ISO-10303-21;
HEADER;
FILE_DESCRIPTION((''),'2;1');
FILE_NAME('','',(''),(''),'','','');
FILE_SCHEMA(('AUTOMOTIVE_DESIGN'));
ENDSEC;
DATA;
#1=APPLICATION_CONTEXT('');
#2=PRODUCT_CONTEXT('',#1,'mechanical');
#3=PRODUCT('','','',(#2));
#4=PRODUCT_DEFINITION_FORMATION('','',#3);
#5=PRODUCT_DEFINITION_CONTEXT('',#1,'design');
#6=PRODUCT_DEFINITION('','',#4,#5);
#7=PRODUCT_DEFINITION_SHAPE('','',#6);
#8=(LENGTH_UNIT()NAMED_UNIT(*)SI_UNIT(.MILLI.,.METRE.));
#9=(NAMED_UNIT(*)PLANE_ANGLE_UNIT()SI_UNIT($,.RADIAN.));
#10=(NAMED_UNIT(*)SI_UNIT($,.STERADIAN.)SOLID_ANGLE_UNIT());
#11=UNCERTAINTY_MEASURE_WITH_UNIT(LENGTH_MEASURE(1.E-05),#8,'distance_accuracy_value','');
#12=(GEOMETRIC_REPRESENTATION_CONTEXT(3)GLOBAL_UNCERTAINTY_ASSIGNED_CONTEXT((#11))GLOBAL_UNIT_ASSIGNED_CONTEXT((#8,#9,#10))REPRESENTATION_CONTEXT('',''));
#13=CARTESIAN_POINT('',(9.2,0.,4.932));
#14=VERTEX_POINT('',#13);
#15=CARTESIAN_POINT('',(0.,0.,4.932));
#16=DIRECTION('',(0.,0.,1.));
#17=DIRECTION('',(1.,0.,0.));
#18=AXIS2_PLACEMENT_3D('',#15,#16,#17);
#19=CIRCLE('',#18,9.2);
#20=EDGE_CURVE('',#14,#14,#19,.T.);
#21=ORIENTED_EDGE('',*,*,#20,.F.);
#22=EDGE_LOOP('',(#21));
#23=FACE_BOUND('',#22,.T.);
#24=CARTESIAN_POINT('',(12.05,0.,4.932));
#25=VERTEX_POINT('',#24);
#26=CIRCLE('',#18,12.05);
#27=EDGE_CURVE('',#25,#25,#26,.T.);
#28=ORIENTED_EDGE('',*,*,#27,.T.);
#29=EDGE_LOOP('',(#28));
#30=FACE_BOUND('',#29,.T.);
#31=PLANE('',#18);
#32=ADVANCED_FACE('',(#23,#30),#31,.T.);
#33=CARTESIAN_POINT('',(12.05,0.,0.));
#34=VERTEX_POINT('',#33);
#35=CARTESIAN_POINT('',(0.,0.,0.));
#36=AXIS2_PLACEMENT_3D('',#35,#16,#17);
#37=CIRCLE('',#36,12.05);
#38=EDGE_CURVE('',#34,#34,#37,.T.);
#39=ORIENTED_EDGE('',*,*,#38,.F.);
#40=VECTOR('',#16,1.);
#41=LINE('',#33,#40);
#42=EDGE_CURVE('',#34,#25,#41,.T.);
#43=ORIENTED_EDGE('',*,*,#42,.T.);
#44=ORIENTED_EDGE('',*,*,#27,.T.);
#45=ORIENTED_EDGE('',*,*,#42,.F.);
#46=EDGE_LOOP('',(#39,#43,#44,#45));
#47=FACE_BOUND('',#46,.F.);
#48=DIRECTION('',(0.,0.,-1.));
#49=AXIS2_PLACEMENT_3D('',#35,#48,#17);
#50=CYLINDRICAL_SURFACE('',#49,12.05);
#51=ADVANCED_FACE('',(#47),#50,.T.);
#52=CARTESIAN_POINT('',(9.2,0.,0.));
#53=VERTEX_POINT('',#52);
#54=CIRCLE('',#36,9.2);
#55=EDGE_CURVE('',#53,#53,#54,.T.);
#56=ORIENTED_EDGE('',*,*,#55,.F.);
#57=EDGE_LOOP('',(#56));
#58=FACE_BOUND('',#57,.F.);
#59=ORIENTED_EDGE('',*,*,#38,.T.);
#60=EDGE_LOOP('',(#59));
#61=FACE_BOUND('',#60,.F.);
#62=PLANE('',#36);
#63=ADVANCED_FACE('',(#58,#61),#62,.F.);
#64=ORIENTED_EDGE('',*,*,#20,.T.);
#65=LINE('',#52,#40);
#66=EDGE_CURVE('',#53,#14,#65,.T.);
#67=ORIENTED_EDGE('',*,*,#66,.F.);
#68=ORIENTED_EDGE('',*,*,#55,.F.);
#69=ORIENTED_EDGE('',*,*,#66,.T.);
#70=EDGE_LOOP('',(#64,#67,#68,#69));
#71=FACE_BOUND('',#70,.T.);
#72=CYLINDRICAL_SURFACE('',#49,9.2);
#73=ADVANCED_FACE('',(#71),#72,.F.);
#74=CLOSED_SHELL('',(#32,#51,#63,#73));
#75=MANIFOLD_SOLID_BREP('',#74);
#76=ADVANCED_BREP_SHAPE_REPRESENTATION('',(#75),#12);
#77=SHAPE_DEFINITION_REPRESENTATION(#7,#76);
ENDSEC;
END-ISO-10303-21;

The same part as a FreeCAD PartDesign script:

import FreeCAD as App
import Part
import Sketcher
Q = App.Units.Quantity

doc = App.newDocument("Part")
body = doc.addObject("PartDesign::Body", "Body")

# Sketch on XY plane
sketch1 = body.newObject("Sketcher::SketchObject", "Sketch")
sketch1.AttachmentSupport = (doc.getObject("XY_Plane"), [""])
sketch1.MapMode = "FlatFace"
sketch1.addGeometry([
    Part.Circle(App.Vector(0, 0, 0), App.Vector(0, 0, 1), 12),
    Part.Circle(App.Vector(0, 0, 0), App.Vector(0, 0, 1), 9),
], False)
sketch1.addConstraint([
    Sketcher.Constraint("Coincident", 0, 3, -1, 1),
    Sketcher.Constraint("Coincident", 1, 3, -1, 1),
    Sketcher.Constraint("Diameter", 0, Q("24.1 mm")),
    Sketcher.Constraint("Diameter", 1, Q("18.4 mm")),
])
pad1 = body.newObject("PartDesign::Pad", "Pad")
pad1.Profile = sketch1
pad1.Length = 4.932

doc.recompute()
